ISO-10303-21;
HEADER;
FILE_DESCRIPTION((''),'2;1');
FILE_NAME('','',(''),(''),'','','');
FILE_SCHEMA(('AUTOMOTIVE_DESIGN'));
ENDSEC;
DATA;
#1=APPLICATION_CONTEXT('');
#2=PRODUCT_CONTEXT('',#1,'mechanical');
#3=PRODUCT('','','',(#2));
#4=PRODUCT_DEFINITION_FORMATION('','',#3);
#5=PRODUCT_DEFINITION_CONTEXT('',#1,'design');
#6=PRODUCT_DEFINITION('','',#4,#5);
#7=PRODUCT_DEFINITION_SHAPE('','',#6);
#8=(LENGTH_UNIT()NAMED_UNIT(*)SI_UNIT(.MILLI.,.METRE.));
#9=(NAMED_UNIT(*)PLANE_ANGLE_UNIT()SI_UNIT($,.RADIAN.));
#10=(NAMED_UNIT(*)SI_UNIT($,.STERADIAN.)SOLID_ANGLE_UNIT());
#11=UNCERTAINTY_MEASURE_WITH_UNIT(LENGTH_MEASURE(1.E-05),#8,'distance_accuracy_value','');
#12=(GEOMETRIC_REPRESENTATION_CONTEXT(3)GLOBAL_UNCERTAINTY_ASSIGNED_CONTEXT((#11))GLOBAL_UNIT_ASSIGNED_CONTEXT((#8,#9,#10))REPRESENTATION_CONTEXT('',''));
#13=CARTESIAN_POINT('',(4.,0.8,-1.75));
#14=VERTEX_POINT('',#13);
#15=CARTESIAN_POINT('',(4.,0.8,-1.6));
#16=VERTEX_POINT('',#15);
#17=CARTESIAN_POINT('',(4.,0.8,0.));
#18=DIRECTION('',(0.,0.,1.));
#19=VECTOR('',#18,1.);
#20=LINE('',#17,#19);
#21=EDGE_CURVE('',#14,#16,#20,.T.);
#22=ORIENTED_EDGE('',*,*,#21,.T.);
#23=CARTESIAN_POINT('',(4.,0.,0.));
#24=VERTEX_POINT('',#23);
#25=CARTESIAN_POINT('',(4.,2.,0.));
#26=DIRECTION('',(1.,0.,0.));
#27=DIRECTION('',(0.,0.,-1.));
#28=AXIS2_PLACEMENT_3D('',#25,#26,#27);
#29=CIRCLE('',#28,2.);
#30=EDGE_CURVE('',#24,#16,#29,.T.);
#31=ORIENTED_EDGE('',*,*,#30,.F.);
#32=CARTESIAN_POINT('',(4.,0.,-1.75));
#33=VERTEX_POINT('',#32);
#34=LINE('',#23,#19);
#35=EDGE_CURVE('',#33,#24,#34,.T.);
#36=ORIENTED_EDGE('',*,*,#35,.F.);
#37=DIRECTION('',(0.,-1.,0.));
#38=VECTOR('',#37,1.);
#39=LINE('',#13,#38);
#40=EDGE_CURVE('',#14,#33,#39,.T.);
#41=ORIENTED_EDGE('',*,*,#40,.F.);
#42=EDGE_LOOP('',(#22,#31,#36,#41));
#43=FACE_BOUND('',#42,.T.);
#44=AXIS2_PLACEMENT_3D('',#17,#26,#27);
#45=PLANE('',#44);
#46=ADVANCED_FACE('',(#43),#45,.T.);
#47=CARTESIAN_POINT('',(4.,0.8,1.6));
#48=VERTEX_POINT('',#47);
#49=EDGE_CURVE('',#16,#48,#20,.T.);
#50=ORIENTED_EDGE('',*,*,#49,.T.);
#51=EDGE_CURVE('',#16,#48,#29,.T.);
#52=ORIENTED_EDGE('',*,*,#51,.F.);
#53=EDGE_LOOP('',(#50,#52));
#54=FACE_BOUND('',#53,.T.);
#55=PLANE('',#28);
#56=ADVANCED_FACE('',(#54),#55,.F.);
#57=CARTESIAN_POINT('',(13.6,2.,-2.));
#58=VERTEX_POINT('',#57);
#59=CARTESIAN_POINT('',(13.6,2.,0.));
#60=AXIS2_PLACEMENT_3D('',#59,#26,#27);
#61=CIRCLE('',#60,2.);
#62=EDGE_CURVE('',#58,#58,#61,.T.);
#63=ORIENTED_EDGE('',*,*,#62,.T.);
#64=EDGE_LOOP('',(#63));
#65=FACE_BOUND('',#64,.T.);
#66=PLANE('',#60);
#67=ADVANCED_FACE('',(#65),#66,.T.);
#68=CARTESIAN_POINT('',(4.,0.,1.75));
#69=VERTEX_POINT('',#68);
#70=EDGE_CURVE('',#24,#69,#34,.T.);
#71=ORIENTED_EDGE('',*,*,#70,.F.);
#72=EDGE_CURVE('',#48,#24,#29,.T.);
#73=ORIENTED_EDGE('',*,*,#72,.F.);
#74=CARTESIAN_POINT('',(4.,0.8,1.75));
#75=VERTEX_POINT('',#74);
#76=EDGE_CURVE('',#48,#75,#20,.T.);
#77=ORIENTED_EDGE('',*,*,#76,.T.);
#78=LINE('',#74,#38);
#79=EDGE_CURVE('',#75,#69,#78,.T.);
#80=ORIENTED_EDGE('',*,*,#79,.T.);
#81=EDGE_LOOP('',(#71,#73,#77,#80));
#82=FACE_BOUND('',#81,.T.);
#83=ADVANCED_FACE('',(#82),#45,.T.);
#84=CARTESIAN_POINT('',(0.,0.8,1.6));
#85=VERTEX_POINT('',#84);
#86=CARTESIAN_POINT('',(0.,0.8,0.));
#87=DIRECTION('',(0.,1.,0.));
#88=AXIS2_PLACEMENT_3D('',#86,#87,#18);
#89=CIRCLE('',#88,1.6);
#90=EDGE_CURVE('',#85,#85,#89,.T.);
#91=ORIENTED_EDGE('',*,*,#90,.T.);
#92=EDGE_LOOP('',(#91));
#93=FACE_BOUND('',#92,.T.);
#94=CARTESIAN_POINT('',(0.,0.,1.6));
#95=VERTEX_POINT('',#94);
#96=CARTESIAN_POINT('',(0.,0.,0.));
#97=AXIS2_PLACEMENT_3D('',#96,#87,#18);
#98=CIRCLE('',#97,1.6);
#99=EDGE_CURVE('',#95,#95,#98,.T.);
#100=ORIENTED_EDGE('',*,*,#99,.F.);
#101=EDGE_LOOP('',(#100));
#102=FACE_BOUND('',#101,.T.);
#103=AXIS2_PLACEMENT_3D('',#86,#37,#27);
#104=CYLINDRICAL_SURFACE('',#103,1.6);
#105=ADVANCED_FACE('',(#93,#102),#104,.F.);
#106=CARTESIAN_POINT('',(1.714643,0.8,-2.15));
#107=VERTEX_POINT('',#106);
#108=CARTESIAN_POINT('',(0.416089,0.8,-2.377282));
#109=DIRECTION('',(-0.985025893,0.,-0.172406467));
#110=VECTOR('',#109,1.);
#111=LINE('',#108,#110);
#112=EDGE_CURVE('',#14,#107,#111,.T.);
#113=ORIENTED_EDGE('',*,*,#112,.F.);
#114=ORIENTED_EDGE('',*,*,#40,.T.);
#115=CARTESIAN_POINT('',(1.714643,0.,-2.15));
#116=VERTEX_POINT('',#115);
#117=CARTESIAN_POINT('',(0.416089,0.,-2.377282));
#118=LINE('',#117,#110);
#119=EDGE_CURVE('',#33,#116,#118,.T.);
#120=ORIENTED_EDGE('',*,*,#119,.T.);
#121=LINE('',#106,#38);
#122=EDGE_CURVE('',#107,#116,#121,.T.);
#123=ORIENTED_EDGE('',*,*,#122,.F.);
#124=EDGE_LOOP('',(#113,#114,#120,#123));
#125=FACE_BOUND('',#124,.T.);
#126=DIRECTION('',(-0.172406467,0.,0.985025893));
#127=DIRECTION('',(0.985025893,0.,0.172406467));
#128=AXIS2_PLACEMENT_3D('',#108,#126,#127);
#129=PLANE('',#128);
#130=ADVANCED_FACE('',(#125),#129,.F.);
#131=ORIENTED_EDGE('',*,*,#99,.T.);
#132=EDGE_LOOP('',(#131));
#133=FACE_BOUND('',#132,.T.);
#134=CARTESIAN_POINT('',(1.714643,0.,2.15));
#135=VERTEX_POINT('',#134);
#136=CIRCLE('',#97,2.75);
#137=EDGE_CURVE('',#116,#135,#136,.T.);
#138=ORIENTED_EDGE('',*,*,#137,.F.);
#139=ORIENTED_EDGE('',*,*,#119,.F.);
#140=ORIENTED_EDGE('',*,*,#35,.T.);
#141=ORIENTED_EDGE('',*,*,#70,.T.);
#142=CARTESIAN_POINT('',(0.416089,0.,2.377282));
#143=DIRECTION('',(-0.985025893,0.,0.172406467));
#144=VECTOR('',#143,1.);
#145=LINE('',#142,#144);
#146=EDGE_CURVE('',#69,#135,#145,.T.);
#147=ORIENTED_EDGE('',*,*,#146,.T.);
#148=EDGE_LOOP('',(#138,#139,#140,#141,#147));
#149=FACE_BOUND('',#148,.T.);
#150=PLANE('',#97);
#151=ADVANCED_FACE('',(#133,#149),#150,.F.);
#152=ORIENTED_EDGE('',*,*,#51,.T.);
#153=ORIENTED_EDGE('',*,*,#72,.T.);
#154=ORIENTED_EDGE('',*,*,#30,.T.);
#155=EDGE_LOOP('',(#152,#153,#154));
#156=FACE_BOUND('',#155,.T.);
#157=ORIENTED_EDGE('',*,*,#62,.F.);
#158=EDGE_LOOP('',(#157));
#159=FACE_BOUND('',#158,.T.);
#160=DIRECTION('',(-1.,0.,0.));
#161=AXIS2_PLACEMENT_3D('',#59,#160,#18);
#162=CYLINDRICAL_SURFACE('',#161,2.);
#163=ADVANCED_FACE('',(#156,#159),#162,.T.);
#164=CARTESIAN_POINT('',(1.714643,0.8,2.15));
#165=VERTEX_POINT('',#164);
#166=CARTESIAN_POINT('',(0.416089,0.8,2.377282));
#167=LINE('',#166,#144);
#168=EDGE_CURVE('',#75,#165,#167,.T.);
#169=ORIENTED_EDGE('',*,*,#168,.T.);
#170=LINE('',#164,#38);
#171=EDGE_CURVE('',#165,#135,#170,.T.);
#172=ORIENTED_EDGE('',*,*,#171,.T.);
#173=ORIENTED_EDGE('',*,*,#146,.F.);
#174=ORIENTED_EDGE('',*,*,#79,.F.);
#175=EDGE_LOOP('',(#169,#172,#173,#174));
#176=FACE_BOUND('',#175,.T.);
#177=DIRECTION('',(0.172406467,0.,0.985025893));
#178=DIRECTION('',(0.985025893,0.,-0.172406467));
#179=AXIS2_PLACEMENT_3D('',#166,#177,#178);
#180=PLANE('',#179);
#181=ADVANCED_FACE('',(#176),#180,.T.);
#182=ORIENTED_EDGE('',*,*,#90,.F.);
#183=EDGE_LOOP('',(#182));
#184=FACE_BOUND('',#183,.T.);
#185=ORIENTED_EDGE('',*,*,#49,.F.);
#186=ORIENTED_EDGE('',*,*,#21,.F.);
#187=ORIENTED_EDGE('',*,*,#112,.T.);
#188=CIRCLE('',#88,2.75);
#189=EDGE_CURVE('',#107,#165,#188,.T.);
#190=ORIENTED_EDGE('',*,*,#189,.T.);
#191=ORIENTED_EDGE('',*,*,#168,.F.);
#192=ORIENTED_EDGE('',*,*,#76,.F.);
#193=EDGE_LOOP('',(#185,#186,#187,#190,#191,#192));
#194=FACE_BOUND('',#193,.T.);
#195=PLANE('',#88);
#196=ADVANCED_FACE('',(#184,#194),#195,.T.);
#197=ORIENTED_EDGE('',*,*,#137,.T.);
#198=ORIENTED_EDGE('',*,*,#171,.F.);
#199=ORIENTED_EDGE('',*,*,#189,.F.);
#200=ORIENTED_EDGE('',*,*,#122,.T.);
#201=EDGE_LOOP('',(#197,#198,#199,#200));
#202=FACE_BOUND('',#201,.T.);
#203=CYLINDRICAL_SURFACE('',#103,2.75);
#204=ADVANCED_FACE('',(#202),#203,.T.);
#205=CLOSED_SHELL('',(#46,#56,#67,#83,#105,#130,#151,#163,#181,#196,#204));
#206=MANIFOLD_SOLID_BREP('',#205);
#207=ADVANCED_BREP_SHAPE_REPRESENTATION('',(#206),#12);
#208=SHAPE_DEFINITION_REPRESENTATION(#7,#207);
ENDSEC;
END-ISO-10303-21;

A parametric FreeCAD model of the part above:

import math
import FreeCAD as App
import Part
import Sketcher

doc = App.newDocument("Part")
body = doc.addObject("PartDesign::Body", "Body")

sketch1 = doc.addObject("Sketcher::SketchObject", "Sketch")
body.addObject(sketch1)
sketch1.AttachmentSupport = (doc.XZ_Plane, [""])
sketch1.MapMode = "FlatFace"
sketch1.addGeometry([
    Part.LineSegment(App.Vector(4, 1.8, 0), App.Vector(4, -1.8, 0)),
    Part.LineSegment(App.Vector(4, -1.8, 0), App.Vector(1.7, -2.1, 0)),
    Part.ArcOfCircle(Part.Circle(App.Vector(0, 0, 0), App.Vector(0, 0, 1), 2.8), math.radians(51), math.radians(309)),
    Part.LineSegment(App.Vector(1.7, 2.1, 0), App.Vector(4, 1.8, 0)),
    Part.Circle(App.Vector(0, 0, 0), App.Vector(0, 0, 1), 1.6),
], False)
sketch1.addConstraint([
    Sketcher.Constraint("Coincident", 0, 2, 1, 1),
    Sketcher.Constraint("Coincident", 1, 2, 2, 2),
    Sketcher.Constraint("Coincident", 2, 1, 3, 1),
    Sketcher.Constraint("Coincident", 3, 2, 0, 1),
    Sketcher.Constraint("Vertical", 0),
    Sketcher.Constraint("Coincident", 2, 3, -1, 1),
    Sketcher.Constraint("Coincident", 4, 3, -1, 1),
    Sketcher.Constraint("Vertical", 1, 2, 2, 1),
    Sketcher.Constraint("Equal", 1, 3),
    Sketcher.Constraint("Diameter", 4, 3.2),
    Sketcher.Constraint("Radius", 2, 2.75),
    Sketcher.Constraint("DistanceY", 0, 2, 0, 1, 3.5),
    Sketcher.Constraint("DistanceX", -1, 1, 0, 2, 4.0),
    Sketcher.Constraint("DistanceY", 1, 2, 0, 2, 0.4),
])
pad1 = doc.addObject("PartDesign::Pad", "Pad")
body.addObject(pad1)
pad1.Profile = sketch1
pad1.Length = 0.8
pad1.Reversed = True

sketch2 = doc.addObject("Sketcher::SketchObject", "Sketch001")
body.addObject(sketch2)
sketch2.AttachmentSupport = (doc.YZ_Plane, [""])
sketch2.MapMode = "FlatFace"
sketch2.AttachmentOffset = App.Placement(App.Vector(0, 0, 4), App.Rotation())
sketch2.addGeometry(Part.Circle(App.Vector(2, 0, 0), App.Vector(0, 0, 1), 2), False)
sketch2.addConstraint([
    Sketcher.Constraint("PointOnObject", 0, 3, -1),
    Sketcher.Constraint("Diameter", 0, 4.0),
    Sketcher.Constraint("DistanceX", -1, 1, 0, 3, 2.0),
])
pad2 = doc.addObject("PartDesign::Pad", "Pad001")
body.addObject(pad2)
pad2.Profile = sketch2
pad2.Length = 9.6

doc.recompute()
